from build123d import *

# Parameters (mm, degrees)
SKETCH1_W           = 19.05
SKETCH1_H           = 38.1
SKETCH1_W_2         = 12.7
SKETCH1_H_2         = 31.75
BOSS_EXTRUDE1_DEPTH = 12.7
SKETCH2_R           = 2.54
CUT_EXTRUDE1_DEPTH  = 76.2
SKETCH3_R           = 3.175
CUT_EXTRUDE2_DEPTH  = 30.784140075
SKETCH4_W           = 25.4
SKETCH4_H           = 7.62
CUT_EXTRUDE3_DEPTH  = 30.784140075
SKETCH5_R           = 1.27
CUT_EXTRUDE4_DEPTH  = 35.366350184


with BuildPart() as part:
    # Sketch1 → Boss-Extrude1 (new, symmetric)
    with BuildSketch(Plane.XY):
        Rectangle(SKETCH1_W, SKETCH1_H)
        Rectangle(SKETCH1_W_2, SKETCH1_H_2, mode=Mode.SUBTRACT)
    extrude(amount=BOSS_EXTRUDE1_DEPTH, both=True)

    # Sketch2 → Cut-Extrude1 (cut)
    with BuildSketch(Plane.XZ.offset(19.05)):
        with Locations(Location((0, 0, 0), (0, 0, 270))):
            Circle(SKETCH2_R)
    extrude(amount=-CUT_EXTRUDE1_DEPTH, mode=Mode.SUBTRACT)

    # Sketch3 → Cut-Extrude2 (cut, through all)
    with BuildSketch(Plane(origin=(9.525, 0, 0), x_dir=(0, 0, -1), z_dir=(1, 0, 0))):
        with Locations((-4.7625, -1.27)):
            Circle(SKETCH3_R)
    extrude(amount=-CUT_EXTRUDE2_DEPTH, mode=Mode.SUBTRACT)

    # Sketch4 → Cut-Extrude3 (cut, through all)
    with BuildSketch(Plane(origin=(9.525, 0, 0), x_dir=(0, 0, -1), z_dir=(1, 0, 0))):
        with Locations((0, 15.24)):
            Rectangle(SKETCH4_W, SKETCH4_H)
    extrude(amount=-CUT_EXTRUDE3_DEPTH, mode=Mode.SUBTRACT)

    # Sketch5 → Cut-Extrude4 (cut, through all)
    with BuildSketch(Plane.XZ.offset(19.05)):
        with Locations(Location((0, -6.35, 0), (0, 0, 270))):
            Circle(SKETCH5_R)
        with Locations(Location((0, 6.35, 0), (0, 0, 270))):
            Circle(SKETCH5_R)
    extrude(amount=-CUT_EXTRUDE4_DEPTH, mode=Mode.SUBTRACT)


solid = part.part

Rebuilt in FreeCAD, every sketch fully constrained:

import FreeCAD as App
import Part
import Sketcher

V = App.Vector
Q = App.Units.Quantity


def add_polygon(sketch, points):
    """Adds a closed chain of lines whose ends are joined by coincident constraints."""
    first, n = sketch.GeometryCount, len(points)
    for a, b in zip(points, points[1:] + points[:1]):
        sketch.addGeometry(Part.LineSegment(App.Vector(*a, 0), App.Vector(*b, 0)), False)
    for i in range(n):
        sketch.addConstraint(Sketcher.Constraint("Coincident", first + i, 2, first + (i + 1) % n, 1))

doc = App.newDocument("Part")
params = doc.addObject("Spreadsheet::Sheet", "Params")
for row, (alias, value) in enumerate([
    ("sketch1_width", "0.5 in"),
    ("sketch1_height", "1.5 in"),
    ("sketch1_width2", "0.75 in"),
    ("sketch1_height2", "1.25 in"),
    ("pad1_length", "1 in"),
    ("sketch2_diameter", "0.2 in"),
    ("pocket1_length", "3 in"),
    ("sketch3_diameter", "0.25 in"),
    ("sketch4_height", "1 in"),
    ("sketch4_width", "0.3 in"),
    ("sketch5_diameter", "0.1 in"),
], start=1):
    params.set(f"A{row}", alias)
    params.set(f"B{row}", "=" + value)
    params.setAlias(f"B{row}", alias)

body = doc.addObject("PartDesign::Body", "Body")

# Sketch on XY plane
sketch1 = body.newObject("Sketcher::SketchObject", "Sketch")
sketch1.AttachmentSupport = (doc.getObject("XY_Plane"), [""])
sketch1.MapMode = "FlatFace"
add_polygon(sketch1, [(-10, 19), (-10, -19), (10, -19), (10, 19)])  # lines 0-3
add_polygon(sketch1, [(6, -16), (-6, -16), (-6, 16), (6, 16)])  # lines 4-7
sketch1.addConstraint([
    Sketcher.Constraint("Vertical", 0),
    Sketcher.Constraint("Horizontal", 1),
    Sketcher.Constraint("Vertical", 2),
    Sketcher.Constraint("Horizontal", 3),
    Sketcher.Constraint("Horizontal", 4),
    Sketcher.Constraint("Vertical", 5),
    Sketcher.Constraint("Horizontal", 6),
    Sketcher.Constraint("Vertical", 7),
    Sketcher.Constraint("Symmetric", 0, 2, 2, 2, -1, 1),
    Sketcher.Constraint("Symmetric", 4, 2, 6, 2, -1, 1),
    Sketcher.Constraint("DistanceX", 4, 2, 4, 1, Q("0.5 in")),
    Sketcher.Constraint("DistanceY", 0, 2, 0, 1, Q("1.5 in")),
    Sketcher.Constraint("DistanceX", 1, 1, 1, 2, Q("0.75 in")),
    Sketcher.Constraint("DistanceY", 5, 1, 5, 2, Q("1.25 in")),
])
sketch1.setExpression("Constraints[18]", "Params.sketch1_width")
sketch1.setExpression("Constraints[19]", "Params.sketch1_height")
sketch1.setExpression("Constraints[20]", "Params.sketch1_width2")
sketch1.setExpression("Constraints[21]", "Params.sketch1_height2")
pad1 = body.newObject("PartDesign::Pad", "Pad")
pad1.Profile = sketch1
pad1.setExpression("Length", "Params.pad1_length")
pad1.Midplane = True

# Sketch on XZ plane
sketch2 = body.newObject("Sketcher::SketchObject", "Sketch001")
sketch2.AttachmentSupport = (doc.getObject("XZ_Plane"), [""])
sketch2.MapMode = "FlatFace"
sketch2.AttachmentOffset = App.Placement(V(0, 0, 0.75 * 25.4), App.Rotation())
sketch2.addGeometry(Part.Circle(V(0, 0, 0), V(0, 0, 1), 2.5), False)
sketch2.addConstraint([
    Sketcher.Constraint("Coincident", 0, 3, -1, 1),
    Sketcher.Constraint("Diameter", 0, Q("0.2 in")),
])
sketch2.setExpression("Constraints[1]", "Params.sketch2_diameter")
pocket1 = body.newObject("PartDesign::Pocket", "Pocket")
pocket1.Profile = sketch2
pocket1.setExpression("Length", "Params.pocket1_length")

# Sketch on YZ plane
sketch3 = body.newObject("Sketcher::SketchObject", "Sketch002")
sketch3.AttachmentSupport = (doc.getObject("YZ_Plane"), [""])
sketch3.MapMode = "FlatFace"
sketch3.AttachmentOffset = App.Placement(V(0, 0, 0.375 * 25.4), App.Rotation())
sketch3.addGeometry(Part.Circle(V(-1.3, 4.8, 0), V(0, 0, 1), 3.2), False)
sketch3.addConstraint([
    Sketcher.Constraint("Diameter", 0, Q("0.25 in")),
    Sketcher.Constraint("DistanceX", 0, 3, -1, 1, Q("0.05 in")),
    Sketcher.Constraint("DistanceY", -1, 1, 0, 3, Q("0.1875 in")),
])
sketch3.setExpression("Constraints[0]", "Params.sketch3_diameter")
pocket2 = body.newObject("PartDesign::Pocket", "Pocket001")
pocket2.Profile = sketch3
pocket2.Type = "ThroughAll"

# Sketch on YZ plane
sketch4 = body.newObject("Sketcher::SketchObject", "Sketch003")
sketch4.AttachmentSupport = (doc.getObject("YZ_Plane"), [""])
sketch4.MapMode = "FlatFace"
sketch4.AttachmentOffset = App.Placement(V(0, 0, 0.375 * 25.4), App.Rotation())
add_polygon(sketch4, [(19, 13), (11, 13), (11, -13), (19, -13)])  # lines 0-3
sketch4.addConstraint([
    Sketcher.Constraint("Horizontal", 0),
    Sketcher.Constraint("Vertical", 1),
    Sketcher.Constraint("Horizontal", 2),
    Sketcher.Constraint("Vertical", 3),
    Sketcher.Constraint("DistanceY", 1, 2, 1, 1, Q("1 in")),
    Sketcher.Constraint("DistanceX", 0, 2, 0, 1, Q("0.3 in")),
    Sketcher.Constraint("DistanceY", -1, 1, 0, 2, Q("0.5 in")),
    Sketcher.Constraint("DistanceX", -1, 1, 0, 2, Q("0.45 in")),
])
sketch4.setExpression("Constraints[8]", "Params.sketch4_height")
sketch4.setExpression("Constraints[9]", "Params.sketch4_width")
pocket3 = body.newObject("PartDesign::Pocket", "Pocket002")
pocket3.Profile = sketch4
pocket3.Type = "ThroughAll"

# Sketch on XZ plane
sketch5 = body.newObject("Sketcher::SketchObject", "Sketch004")
sketch5.AttachmentSupport = (doc.getObject("XZ_Plane"), [""])
sketch5.MapMode = "FlatFace"
sketch5.AttachmentOffset = App.Placement(V(0, 0, 0.75 * 25.4), App.Rotation())
sketch5.addGeometry([
    Part.Circle(V(0, -6.3, 0), V(0, 0, 1), 1.3),
    Part.Circle(V(0, 6.3, 0), V(0, 0, 1), 1.3),
], False)
sketch5.addConstraint([
    Sketcher.Constraint("Equal", 0, 1),
    Sketcher.Constraint("Symmetric", 0, 3, 1, 3, -1, 1),
    Sketcher.Constraint("PointOnObject", 0, 3, -2),
    Sketcher.Constraint("Diameter", 0, Q("0.1 in")),
    Sketcher.Constraint("DistanceY", 0, 3, 1, 3, Q("0.5 in")),
])
sketch5.setExpression("Constraints[3]", "Params.sketch5_diameter")
pocket4 = body.newObject("PartDesign::Pocket", "Pocket003")
pocket4.Profile = sketch5
pocket4.Type = "ThroughAll"

doc.recompute()
